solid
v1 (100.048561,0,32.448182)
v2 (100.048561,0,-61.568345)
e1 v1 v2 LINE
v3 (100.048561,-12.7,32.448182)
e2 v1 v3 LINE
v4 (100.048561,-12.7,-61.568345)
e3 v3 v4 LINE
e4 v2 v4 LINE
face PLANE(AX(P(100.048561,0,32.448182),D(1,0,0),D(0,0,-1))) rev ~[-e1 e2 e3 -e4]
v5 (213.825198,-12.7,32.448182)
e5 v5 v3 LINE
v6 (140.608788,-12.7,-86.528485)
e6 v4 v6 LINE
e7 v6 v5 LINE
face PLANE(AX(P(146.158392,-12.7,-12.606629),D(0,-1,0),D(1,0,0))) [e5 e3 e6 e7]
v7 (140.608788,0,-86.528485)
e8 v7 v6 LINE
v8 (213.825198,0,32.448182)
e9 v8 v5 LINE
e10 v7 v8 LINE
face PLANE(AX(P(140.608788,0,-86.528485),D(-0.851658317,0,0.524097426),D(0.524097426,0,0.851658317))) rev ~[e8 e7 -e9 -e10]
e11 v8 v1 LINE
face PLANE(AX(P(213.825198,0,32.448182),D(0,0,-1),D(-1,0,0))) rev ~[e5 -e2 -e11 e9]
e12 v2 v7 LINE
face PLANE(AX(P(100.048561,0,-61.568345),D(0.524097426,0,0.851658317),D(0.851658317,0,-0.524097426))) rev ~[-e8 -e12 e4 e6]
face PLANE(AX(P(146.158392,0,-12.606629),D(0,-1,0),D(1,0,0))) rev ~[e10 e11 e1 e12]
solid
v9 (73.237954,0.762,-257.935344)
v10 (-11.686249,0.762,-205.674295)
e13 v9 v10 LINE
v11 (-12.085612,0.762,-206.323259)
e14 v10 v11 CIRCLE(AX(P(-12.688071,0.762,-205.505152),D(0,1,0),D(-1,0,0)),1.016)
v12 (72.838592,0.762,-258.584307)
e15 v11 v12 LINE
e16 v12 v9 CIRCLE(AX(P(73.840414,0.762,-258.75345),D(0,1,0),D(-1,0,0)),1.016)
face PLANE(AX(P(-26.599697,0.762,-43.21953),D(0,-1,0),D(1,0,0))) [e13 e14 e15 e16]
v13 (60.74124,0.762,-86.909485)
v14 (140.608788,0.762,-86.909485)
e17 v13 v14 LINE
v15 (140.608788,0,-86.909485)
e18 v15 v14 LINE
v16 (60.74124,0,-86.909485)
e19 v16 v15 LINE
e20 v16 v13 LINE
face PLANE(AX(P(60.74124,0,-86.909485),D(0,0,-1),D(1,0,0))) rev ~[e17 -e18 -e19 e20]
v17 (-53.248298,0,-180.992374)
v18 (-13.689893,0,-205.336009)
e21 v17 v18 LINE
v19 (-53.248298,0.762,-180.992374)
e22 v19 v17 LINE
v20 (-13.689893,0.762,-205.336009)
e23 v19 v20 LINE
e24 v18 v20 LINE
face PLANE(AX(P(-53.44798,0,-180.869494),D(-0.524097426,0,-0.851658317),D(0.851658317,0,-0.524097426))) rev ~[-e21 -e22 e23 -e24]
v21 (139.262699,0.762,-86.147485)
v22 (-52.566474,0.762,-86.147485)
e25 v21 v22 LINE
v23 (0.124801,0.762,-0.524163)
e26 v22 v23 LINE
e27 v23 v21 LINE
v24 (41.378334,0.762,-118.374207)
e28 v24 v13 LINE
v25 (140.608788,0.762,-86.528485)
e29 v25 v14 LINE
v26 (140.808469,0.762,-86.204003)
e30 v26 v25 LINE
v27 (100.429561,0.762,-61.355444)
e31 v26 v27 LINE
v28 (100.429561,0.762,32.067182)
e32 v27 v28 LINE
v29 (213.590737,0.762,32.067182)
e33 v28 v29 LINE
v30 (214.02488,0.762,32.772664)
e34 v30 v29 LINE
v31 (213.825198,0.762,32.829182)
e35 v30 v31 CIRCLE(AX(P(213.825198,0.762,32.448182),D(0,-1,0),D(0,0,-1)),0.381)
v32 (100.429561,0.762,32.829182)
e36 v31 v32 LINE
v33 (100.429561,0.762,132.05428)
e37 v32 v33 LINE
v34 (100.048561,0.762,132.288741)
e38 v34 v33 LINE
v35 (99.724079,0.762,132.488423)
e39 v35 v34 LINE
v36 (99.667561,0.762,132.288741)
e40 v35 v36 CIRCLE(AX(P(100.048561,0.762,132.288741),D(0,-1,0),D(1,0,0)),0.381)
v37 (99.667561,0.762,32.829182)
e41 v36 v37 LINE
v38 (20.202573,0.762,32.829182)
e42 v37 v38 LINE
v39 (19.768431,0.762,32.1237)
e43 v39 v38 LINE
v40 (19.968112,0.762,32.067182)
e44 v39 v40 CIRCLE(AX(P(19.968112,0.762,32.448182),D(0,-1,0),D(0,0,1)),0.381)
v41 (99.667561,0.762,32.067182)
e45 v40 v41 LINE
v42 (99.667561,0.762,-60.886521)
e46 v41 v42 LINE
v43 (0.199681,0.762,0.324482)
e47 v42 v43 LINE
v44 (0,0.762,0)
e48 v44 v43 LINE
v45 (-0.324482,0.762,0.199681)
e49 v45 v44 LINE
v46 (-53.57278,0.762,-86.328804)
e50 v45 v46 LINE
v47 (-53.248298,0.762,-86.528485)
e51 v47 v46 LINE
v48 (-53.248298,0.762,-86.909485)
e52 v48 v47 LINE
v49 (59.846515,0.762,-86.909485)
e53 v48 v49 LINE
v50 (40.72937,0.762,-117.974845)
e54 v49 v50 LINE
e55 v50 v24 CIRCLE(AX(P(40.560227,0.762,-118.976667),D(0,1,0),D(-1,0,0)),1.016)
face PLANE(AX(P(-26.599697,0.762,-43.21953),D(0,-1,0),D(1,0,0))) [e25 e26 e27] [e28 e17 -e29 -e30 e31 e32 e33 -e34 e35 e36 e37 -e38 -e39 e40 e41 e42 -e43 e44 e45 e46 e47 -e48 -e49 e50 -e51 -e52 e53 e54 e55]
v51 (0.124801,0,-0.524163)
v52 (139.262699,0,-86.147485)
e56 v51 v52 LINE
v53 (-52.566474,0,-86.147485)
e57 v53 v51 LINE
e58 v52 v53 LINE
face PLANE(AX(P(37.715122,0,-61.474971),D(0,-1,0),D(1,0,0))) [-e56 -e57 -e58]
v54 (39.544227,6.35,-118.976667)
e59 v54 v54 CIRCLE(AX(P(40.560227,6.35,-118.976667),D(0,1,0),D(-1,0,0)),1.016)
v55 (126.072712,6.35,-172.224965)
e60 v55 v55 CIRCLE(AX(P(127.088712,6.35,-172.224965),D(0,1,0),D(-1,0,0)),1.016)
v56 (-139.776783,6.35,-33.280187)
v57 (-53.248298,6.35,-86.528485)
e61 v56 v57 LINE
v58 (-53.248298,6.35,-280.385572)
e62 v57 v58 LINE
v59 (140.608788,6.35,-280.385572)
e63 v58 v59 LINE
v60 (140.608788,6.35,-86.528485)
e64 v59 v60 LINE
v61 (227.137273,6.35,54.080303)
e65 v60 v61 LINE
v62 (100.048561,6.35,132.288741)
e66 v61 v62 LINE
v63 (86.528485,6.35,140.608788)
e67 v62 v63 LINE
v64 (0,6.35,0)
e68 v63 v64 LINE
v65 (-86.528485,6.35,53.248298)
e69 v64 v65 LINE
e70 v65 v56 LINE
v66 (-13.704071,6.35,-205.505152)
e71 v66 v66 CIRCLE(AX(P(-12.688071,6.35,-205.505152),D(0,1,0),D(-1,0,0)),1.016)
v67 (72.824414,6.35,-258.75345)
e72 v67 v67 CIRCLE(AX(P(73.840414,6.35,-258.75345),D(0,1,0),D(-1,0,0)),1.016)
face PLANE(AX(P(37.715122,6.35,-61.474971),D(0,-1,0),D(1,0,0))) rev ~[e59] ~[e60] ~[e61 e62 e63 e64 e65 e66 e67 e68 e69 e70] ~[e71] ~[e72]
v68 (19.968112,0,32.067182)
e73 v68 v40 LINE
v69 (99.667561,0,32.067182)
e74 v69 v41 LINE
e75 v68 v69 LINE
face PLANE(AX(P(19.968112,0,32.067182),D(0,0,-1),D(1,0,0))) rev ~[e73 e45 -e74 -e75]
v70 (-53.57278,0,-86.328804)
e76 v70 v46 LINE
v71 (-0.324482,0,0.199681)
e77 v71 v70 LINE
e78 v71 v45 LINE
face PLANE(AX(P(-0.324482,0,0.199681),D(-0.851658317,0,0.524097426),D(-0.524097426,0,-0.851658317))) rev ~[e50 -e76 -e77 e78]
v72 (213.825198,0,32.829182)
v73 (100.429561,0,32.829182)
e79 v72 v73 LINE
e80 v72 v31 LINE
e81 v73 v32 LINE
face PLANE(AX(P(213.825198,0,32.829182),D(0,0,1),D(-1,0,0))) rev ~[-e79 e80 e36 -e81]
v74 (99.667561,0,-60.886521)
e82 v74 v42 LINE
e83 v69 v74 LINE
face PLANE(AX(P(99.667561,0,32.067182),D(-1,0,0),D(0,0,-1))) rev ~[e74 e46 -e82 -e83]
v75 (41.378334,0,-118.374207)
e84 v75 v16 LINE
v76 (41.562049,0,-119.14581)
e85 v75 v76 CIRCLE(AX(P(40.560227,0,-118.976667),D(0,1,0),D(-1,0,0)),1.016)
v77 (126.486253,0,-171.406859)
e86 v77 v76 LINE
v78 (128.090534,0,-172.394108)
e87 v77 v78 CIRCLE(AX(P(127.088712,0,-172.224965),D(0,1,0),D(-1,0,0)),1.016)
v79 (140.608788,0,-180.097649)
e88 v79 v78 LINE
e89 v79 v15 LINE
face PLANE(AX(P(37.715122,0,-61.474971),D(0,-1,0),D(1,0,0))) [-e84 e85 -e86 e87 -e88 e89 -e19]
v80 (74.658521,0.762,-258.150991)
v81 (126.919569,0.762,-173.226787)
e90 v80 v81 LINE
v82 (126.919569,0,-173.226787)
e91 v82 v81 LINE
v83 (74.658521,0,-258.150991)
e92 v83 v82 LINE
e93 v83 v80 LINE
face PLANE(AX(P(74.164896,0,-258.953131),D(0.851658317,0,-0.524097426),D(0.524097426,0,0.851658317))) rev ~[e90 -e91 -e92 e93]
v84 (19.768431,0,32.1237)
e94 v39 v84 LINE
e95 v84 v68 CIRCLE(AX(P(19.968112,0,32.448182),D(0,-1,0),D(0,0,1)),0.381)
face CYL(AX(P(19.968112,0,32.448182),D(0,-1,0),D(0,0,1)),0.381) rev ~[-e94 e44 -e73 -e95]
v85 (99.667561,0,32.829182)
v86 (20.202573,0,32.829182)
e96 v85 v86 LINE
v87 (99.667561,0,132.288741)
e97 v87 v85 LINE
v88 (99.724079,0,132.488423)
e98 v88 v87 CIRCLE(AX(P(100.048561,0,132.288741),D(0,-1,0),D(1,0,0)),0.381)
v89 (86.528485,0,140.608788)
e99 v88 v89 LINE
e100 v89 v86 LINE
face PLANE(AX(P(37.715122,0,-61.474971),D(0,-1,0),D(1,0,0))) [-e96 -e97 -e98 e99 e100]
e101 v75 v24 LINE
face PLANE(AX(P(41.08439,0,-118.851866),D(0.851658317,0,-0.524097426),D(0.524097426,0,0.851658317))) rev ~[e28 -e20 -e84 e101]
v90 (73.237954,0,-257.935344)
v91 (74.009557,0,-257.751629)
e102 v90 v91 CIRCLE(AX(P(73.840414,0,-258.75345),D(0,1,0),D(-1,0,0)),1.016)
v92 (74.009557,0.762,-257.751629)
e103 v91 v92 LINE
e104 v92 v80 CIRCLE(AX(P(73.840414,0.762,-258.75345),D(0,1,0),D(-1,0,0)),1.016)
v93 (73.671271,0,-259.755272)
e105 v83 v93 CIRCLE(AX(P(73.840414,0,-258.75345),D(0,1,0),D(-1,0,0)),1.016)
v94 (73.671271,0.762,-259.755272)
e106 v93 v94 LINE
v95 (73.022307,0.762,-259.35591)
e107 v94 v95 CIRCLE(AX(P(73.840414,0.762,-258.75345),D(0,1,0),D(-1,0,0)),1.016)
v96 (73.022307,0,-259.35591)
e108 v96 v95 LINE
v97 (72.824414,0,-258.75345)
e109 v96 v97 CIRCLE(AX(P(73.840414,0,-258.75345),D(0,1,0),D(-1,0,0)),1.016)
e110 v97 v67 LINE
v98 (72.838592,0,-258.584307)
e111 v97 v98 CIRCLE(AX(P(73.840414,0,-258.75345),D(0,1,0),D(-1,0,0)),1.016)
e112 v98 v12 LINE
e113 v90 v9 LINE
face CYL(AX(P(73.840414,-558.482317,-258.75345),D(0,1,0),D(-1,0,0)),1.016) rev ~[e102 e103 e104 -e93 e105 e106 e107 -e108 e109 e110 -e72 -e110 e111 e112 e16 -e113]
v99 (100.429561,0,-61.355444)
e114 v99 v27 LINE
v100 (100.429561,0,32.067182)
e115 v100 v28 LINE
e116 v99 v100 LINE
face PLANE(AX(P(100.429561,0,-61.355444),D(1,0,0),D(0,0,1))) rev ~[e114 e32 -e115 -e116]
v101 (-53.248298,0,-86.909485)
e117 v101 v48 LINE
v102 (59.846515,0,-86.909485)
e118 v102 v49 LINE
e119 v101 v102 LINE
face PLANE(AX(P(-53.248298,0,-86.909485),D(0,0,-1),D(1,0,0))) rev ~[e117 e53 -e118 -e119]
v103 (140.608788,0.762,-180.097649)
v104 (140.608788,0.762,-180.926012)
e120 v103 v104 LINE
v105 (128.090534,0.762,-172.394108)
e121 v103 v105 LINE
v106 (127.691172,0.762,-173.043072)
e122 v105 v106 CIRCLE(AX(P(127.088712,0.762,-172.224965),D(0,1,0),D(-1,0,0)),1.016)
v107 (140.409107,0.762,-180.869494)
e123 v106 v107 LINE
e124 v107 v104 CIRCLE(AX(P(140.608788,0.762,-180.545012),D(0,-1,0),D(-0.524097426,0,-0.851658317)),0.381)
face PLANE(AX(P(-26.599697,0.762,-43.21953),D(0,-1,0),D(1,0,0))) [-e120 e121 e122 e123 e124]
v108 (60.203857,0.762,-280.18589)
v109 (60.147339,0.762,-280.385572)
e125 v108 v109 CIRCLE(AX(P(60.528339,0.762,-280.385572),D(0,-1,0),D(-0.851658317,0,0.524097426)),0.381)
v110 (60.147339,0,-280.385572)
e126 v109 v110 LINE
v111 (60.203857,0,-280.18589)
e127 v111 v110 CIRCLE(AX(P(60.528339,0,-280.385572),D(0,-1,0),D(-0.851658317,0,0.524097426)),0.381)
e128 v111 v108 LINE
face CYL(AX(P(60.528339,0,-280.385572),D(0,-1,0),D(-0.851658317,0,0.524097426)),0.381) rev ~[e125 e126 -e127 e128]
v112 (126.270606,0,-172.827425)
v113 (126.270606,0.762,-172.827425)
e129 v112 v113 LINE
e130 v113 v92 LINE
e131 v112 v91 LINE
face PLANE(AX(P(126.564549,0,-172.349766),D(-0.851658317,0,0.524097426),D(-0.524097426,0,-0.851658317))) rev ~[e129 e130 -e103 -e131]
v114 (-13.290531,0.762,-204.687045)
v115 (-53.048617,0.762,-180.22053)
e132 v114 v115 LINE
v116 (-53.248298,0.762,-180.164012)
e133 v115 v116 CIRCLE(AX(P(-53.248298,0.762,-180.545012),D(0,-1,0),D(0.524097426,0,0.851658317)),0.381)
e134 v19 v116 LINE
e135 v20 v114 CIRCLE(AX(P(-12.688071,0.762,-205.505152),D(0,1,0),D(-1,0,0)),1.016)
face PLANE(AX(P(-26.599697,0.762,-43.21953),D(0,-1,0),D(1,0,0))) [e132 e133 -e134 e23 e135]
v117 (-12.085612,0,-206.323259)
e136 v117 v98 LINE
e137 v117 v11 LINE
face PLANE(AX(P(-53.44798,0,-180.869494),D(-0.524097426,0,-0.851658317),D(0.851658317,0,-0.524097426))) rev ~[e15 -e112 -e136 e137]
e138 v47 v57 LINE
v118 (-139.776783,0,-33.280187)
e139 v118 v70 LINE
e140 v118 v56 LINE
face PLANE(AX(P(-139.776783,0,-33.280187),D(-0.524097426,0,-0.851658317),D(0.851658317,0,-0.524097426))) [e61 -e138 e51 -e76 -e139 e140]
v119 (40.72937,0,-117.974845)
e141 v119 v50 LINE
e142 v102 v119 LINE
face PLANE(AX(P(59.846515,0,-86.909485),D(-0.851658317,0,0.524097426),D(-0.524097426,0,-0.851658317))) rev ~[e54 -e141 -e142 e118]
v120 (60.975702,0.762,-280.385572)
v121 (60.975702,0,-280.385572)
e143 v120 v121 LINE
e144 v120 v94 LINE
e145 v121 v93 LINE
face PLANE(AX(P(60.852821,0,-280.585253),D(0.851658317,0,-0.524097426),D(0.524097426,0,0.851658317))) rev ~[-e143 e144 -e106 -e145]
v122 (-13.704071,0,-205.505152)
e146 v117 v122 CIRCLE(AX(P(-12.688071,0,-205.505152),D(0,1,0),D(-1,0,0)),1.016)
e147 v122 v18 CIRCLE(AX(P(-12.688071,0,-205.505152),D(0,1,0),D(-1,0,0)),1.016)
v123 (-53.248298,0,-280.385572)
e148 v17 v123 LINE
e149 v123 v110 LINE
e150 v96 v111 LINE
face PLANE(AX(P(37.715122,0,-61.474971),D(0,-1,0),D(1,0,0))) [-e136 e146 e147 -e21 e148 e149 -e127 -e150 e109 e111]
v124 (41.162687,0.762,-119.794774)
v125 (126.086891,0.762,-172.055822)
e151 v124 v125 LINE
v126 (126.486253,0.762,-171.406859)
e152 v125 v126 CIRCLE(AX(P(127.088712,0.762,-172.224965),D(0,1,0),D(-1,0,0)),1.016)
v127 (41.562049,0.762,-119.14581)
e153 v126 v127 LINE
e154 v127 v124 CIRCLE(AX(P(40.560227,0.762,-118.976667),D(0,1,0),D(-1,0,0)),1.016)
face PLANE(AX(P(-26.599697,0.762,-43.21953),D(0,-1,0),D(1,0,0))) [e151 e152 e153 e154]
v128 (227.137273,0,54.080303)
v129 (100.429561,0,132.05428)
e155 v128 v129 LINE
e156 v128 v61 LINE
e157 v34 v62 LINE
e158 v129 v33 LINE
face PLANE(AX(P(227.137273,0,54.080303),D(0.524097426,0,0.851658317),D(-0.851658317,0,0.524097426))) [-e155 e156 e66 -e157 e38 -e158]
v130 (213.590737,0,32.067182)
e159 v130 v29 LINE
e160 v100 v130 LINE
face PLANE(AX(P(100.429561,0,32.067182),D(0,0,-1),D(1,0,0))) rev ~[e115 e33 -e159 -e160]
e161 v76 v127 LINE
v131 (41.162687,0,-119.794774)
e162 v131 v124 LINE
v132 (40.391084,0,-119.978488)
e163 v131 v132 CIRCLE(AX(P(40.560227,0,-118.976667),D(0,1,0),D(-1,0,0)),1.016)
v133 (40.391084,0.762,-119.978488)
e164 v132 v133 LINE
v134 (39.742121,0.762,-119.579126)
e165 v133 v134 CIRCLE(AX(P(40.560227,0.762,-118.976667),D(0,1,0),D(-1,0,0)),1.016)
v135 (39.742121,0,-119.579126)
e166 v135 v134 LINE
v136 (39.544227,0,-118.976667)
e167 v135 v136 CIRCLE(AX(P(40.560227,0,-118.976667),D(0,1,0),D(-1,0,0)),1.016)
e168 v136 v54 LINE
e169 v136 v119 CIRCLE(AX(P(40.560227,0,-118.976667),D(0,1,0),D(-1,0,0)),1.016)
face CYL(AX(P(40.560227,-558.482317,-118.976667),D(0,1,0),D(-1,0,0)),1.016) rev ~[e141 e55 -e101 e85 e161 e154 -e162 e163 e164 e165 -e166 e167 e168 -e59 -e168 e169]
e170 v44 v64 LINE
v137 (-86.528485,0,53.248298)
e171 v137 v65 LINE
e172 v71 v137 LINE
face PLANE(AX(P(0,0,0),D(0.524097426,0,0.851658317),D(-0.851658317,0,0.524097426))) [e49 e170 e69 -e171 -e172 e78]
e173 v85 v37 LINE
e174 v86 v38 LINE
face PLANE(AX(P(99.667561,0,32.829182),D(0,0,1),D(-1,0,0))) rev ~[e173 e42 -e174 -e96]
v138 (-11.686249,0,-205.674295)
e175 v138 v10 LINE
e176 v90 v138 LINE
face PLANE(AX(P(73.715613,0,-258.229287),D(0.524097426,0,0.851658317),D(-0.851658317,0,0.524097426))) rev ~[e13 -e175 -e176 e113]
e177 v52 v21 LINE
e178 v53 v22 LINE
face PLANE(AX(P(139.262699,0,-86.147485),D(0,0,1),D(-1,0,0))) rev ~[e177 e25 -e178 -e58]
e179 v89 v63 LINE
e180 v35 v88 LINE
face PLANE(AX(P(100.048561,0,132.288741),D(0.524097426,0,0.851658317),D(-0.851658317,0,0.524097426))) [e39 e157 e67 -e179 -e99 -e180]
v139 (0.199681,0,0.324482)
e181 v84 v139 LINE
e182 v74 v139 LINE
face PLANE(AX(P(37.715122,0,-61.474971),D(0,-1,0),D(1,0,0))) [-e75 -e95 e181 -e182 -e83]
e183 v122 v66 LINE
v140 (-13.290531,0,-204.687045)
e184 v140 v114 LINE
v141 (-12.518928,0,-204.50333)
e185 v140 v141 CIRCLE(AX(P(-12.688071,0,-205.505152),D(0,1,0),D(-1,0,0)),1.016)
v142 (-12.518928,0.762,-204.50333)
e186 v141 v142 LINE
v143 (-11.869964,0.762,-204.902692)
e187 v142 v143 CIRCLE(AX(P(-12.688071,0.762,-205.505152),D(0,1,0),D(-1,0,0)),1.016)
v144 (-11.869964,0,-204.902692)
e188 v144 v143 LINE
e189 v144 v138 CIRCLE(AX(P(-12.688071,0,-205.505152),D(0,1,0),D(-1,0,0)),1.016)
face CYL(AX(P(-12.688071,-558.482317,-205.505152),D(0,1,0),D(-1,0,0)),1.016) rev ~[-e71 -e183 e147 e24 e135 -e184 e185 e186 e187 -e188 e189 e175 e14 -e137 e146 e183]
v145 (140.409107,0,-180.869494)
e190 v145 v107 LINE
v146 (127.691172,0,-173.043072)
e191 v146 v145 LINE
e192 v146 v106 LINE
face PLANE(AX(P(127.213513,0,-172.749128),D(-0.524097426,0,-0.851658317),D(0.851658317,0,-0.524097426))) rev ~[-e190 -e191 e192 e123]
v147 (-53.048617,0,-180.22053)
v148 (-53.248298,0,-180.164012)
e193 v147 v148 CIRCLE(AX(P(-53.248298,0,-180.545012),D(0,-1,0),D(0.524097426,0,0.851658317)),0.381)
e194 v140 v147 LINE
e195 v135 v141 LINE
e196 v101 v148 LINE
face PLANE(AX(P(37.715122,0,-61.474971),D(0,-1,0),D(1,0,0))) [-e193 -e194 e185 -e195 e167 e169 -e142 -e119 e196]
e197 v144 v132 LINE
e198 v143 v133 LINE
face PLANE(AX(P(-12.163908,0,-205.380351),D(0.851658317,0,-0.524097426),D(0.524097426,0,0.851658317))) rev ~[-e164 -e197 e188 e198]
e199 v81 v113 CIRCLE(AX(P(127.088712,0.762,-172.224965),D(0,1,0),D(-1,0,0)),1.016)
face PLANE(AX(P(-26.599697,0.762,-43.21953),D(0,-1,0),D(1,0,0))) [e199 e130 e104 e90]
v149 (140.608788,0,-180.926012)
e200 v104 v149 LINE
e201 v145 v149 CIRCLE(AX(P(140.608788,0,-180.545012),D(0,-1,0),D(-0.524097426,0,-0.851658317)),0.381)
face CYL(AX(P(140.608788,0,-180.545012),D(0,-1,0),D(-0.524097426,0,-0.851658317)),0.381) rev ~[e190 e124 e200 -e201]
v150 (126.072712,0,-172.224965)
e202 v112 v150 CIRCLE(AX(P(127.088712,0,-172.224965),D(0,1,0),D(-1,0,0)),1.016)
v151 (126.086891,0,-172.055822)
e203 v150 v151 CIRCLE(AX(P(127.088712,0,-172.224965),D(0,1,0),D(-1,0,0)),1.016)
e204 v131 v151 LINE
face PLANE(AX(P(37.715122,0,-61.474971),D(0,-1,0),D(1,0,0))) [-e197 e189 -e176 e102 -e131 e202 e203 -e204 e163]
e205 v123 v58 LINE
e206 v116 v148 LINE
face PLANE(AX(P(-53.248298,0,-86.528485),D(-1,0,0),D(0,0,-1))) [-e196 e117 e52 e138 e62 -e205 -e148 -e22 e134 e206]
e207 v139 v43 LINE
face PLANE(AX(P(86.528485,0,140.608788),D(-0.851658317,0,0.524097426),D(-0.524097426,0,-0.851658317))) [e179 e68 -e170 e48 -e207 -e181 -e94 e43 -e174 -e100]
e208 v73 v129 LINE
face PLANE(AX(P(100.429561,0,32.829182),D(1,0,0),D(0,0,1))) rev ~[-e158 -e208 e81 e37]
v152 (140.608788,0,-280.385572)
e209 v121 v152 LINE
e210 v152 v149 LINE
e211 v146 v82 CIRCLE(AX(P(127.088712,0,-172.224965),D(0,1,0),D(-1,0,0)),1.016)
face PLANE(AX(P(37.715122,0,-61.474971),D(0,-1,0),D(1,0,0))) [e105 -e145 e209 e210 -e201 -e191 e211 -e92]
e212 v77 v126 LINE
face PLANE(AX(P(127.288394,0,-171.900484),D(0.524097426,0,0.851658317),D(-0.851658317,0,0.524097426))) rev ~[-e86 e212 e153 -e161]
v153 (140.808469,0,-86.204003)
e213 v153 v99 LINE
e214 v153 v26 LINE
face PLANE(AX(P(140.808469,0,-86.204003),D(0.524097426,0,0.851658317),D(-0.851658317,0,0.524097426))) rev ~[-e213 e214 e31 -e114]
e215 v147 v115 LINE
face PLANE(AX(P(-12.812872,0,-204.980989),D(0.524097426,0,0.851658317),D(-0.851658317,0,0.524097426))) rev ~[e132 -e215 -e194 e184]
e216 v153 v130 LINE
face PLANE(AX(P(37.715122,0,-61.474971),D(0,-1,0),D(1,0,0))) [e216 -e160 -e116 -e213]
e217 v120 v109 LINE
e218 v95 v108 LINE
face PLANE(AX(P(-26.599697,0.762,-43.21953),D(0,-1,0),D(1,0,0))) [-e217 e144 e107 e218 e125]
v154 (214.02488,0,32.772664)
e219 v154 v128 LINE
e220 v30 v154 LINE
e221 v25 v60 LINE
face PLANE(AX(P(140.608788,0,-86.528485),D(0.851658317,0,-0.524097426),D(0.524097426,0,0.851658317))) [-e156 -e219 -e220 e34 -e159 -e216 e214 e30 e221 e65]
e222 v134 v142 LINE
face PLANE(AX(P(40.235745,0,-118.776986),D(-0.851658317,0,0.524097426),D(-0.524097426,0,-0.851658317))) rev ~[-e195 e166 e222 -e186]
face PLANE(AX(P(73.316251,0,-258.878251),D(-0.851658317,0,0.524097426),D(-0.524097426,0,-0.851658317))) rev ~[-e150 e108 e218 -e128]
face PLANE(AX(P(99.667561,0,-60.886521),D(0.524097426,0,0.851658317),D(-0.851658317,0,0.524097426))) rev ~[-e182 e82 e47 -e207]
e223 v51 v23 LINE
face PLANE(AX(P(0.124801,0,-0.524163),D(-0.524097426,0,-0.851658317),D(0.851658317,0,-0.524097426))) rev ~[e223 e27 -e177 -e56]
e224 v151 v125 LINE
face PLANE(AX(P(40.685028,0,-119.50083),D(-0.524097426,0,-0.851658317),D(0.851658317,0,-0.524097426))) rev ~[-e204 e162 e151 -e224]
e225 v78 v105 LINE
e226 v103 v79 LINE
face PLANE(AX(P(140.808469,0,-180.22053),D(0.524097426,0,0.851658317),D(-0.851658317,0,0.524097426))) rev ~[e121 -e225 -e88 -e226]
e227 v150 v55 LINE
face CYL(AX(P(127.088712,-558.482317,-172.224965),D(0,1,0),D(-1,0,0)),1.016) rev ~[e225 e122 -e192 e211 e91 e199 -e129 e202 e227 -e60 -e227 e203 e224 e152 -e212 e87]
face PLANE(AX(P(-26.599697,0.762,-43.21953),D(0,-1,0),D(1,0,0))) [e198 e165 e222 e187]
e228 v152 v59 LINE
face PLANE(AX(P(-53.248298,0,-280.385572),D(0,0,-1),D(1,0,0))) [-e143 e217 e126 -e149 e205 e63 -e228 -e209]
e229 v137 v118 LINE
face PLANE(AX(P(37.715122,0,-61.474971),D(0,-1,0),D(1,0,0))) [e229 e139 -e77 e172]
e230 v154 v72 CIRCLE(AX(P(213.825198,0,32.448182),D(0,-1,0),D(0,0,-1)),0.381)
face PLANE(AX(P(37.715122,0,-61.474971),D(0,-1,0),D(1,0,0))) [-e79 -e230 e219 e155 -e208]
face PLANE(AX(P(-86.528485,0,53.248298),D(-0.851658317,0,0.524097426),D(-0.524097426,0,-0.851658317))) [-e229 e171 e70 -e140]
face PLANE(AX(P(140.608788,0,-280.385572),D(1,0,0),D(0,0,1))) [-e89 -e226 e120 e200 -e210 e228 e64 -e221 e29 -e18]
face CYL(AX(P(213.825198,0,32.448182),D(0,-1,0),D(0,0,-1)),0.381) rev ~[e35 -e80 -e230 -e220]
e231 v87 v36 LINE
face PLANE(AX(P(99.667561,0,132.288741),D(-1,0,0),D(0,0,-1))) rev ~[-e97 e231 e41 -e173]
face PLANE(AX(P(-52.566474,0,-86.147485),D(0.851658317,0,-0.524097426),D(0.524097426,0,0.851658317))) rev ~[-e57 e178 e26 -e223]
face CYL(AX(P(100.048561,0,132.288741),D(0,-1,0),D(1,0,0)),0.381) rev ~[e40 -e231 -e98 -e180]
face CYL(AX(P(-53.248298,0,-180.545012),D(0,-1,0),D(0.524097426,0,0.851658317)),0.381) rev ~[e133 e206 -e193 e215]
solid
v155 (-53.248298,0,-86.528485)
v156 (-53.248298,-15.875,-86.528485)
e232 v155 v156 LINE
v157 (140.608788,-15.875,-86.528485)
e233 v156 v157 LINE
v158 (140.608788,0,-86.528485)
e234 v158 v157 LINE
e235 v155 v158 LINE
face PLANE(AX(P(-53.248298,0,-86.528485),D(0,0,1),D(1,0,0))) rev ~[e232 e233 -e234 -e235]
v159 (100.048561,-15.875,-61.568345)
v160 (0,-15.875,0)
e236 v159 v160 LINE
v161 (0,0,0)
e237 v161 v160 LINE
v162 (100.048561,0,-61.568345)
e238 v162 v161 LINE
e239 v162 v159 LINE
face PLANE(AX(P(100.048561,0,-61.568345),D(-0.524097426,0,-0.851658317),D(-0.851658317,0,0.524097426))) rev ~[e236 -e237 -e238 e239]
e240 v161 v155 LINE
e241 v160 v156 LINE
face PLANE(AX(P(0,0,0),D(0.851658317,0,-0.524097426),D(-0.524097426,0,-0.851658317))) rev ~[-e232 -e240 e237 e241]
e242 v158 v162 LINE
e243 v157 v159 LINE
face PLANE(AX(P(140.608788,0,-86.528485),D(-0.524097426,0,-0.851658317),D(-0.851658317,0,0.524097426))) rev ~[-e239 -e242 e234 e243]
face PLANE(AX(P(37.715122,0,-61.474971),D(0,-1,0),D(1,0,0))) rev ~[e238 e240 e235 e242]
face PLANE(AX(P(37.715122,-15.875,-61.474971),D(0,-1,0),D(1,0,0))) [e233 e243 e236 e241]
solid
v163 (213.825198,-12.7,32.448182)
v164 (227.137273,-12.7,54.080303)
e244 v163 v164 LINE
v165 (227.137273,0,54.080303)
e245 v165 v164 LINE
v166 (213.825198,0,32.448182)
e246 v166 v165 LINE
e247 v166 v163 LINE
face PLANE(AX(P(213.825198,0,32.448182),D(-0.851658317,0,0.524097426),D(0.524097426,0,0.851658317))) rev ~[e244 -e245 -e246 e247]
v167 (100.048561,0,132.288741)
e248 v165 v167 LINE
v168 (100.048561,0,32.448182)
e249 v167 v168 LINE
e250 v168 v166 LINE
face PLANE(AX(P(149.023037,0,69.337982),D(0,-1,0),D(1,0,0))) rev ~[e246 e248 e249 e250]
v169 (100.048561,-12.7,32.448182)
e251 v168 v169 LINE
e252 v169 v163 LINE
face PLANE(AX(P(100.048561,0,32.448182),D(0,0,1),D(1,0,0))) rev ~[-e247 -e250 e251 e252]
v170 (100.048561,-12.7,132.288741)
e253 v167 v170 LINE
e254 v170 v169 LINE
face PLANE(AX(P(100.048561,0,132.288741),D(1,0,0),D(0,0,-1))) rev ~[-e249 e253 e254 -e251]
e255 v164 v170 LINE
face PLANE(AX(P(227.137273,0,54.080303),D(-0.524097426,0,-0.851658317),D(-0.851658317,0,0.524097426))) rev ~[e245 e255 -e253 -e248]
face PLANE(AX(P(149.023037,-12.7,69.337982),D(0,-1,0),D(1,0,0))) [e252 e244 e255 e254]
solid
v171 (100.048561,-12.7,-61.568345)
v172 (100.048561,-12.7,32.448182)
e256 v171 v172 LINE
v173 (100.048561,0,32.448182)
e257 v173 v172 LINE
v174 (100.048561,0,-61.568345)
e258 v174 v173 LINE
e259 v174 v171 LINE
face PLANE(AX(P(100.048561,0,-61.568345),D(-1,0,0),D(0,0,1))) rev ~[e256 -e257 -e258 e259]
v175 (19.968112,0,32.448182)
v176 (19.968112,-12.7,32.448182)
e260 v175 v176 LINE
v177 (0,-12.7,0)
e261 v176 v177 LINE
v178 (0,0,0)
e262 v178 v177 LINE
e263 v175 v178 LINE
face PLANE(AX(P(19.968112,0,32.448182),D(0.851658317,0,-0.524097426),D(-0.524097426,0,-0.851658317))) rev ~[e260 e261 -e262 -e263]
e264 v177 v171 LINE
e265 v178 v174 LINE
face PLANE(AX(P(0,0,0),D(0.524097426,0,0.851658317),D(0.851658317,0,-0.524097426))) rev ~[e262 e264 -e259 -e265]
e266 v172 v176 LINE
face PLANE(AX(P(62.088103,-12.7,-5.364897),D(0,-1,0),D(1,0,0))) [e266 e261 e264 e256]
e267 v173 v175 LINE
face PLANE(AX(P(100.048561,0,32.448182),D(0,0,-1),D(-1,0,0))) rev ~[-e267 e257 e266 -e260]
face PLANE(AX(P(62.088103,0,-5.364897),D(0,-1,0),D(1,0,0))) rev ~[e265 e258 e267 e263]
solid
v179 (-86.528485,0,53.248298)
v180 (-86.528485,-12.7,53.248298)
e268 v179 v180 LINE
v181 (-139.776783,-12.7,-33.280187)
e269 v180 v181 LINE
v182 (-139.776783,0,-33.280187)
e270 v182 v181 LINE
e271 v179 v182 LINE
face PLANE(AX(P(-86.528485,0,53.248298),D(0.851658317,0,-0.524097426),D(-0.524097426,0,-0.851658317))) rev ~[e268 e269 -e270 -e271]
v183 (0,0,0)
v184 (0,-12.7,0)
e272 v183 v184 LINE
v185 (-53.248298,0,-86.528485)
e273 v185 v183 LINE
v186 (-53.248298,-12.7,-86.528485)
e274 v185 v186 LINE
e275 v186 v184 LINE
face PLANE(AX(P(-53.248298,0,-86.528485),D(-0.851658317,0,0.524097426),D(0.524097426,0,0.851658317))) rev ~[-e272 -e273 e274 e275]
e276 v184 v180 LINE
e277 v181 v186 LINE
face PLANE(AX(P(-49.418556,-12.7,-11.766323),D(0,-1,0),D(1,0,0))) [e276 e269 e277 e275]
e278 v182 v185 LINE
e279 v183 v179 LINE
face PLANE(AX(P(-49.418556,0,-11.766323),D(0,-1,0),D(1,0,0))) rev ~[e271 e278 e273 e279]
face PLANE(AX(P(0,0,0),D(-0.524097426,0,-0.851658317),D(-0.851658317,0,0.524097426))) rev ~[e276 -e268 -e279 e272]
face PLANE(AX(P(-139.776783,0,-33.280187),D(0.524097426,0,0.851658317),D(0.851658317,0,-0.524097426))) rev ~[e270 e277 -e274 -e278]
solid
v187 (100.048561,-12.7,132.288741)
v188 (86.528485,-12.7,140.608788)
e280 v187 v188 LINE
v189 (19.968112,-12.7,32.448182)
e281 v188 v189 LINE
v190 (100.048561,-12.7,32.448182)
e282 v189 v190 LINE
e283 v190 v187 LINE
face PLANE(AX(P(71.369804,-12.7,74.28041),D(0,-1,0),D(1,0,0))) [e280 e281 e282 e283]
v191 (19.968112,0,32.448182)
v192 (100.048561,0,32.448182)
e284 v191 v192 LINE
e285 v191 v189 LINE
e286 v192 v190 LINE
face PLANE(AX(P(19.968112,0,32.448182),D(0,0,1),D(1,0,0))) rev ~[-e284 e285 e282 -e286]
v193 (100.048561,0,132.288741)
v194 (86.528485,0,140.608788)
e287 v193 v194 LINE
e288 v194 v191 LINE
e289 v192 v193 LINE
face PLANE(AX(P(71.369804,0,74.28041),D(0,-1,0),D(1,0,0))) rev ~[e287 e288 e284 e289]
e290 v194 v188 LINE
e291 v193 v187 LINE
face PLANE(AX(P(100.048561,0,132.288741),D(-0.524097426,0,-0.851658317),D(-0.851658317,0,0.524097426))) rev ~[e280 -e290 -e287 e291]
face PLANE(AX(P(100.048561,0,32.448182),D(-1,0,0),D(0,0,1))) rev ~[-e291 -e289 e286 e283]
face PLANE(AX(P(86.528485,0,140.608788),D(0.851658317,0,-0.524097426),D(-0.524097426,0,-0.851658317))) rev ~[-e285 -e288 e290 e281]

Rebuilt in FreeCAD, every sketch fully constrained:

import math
import FreeCAD as App
import Part
import Sketcher
from FreeCAD import Vector
Q = App.Units.Quantity

doc = App.newDocument("Part")
body = doc.addObject("PartDesign::Body", "Body")

# Sketch on XZ plane
sketch1 = doc.addObject("Sketcher::SketchObject", "Sketch")
body.addObject(sketch1)
sketch1.AttachmentSupport = (doc.XZ_Plane, [""])
sketch1.MapMode = "FlatFace"
sketch1.addGeometry([
    Part.LineSegment(Vector(141, -87, 0), Vector(227, 54, 0)),  # 0
    Part.LineSegment(Vector(227, 54, 0), Vector(100, 132, 0)),  # 1
    Part.LineSegment(Vector(100, 132, 0), Vector(87, 141, 0)),  # 2
    Part.LineSegment(Vector(87, 141, 0), Vector(0, 0, 0)),  # 3
    Part.LineSegment(Vector(0, 0, 0), Vector(-87, 53, 0)),  # 4
    Part.LineSegment(Vector(-87, 53, 0), Vector(-140, -33, 0)),  # 5
    Part.LineSegment(Vector(-140, -33, 0), Vector(-53, -87, 0)),  # 6
    Part.LineSegment(Vector(-53, -87, 0), Vector(-53, -280, 0)),  # 7
    Part.LineSegment(Vector(-53, -280, 0), Vector(141, -280, 0)),  # 8
    Part.LineSegment(Vector(141, -280, 0), Vector(141, -87, 0)),  # 9
], False)
sketch1.addConstraint([
    Sketcher.Constraint("Coincident", 0, 2, 1, 1),
    Sketcher.Constraint("Coincident", 1, 2, 2, 1),
    Sketcher.Constraint("Coincident", 2, 2, 3, 1),
    Sketcher.Constraint("Coincident", 3, 2, 4, 1),
    Sketcher.Constraint("Coincident", 4, 2, 5, 1),
    Sketcher.Constraint("Coincident", 5, 2, 6, 1),
    Sketcher.Constraint("Coincident", 6, 2, 7, 1),
    Sketcher.Constraint("Coincident", 7, 2, 8, 1),
    Sketcher.Constraint("Coincident", 8, 2, 9, 1),
    Sketcher.Constraint("Coincident", 9, 2, 0, 1),
    Sketcher.Constraint("Vertical", 7),
    Sketcher.Constraint("Horizontal", 8),
    Sketcher.Constraint("Vertical", 9),
    Sketcher.Constraint("Coincident", 3, 2, -1, 1),
    Sketcher.Constraint("Perpendicular", 0, 1),
    Sketcher.Constraint("Parallel", 1, 2),
    Sketcher.Constraint("Perpendicular", 2, 3),
    Sketcher.Constraint("Perpendicular", 3, 4),
    Sketcher.Constraint("Perpendicular", 4, 5),
    Sketcher.Constraint("Perpendicular", 5, 6),
    Sketcher.Constraint("Horizontal", 6, 2, 9, 2),
    Sketcher.Constraint("Equal", 8, 7),
    Sketcher.Constraint("Equal", 0, 3),
    Sketcher.Constraint("Equal", 4, 5),
    Sketcher.Constraint("Equal", 5, 6),
    Sketcher.Constraint("Distance", 4, Q("4 in")),
    Sketcher.Constraint("Distance", 0, Q("6.5 in")),
    Sketcher.Constraint("Distance", 1, Q("5.875 in")),
    Sketcher.Constraint("Distance", 2, Q("0.625 in")),
])
pad1 = doc.addObject("PartDesign::Pad", "Pad")
body.addObject(pad1)
pad1.Profile = sketch1
pad1.Length = Q("0.25 in")
pad1.Reversed = True

# Sketch on XZ plane
sketch2 = doc.addObject("Sketcher::SketchObject", "Sketch001")
body.addObject(sketch2)
sketch2.AttachmentSupport = (doc.XZ_Plane, [""])
sketch2.MapMode = "FlatFace"
sketch2.addGeometry([
    Part.LineSegment(Vector(-53.45, -180.87, 0), Vector(73.32, -258.88, 0)),  # 0
    Part.LineSegment(Vector(73.32, -258.88, 0), Vector(60.2, -280.19, 0)),  # 1
    Part.ArcOfCircle(Part.Circle(Vector(60.53, -280.39, 0), Vector(0, 0, 1), 0.38), math.radians(148), math.radians(328)),  # 2
    Part.LineSegment(Vector(60.85, -280.59, 0), Vector(74.16, -258.95, 0)),  # 3
    Part.LineSegment(Vector(74.16, -258.95, 0), Vector(127.21, -172.75, 0)),  # 4
    Part.LineSegment(Vector(127.21, -172.75, 0), Vector(140.41, -180.87, 0)),  # 5
    Part.ArcOfCircle(Part.Circle(Vector(140.61, -180.55, 0), Vector(0, 0, 1), 0.38), math.radians(-122), math.radians(58)),  # 6
    Part.LineSegment(Vector(140.81, -180.22, 0), Vector(127.29, -171.9, 0)),  # 7
    Part.LineSegment(Vector(127.29, -171.9, 0), Vector(41.08, -118.85, 0)),  # 8
    Part.LineSegment(Vector(41.08, -118.85, 0), Vector(60.74, -86.91, 0)),  # 9
    Part.LineSegment(Vector(60.74, -86.91, 0), Vector(140.61, -86.91, 0)),  # 10
    Part.ArcOfCircle(Part.Circle(Vector(140.61, -86.53, 0), Vector(0, 0, 1), 0.38), math.radians(-90), math.radians(58)),  # 11
    Part.LineSegment(Vector(140.81, -86.2, 0), Vector(100.43, -61.36, 0)),  # 12
    Part.LineSegment(Vector(100.43, -61.36, 0), Vector(100.43, 32.07, 0)),  # 13
    Part.LineSegment(Vector(100.43, 32.07, 0), Vector(213.83, 32.07, 0)),  # 14
    Part.ArcOfCircle(Part.Circle(Vector(213.83, 32.45, 0), Vector(0, 0, 1), 0.38), math.radians(-90), math.radians(90)),  # 15
    Part.LineSegment(Vector(213.83, 32.83, 0), Vector(100.43, 32.83, 0)),  # 16
    Part.LineSegment(Vector(100.43, 32.83, 0), Vector(100.43, 132.29, 0)),  # 17
    Part.ArcOfCircle(Part.Circle(Vector(100.05, 132.29, 0), Vector(0, 0, 1), 0.38), math.radians(0), math.radians(180)),  # 18
    Part.LineSegment(Vector(99.67, 132.29, 0), Vector(99.67, 32.83, 0)),  # 19
    Part.LineSegment(Vector(99.67, 32.83, 0), Vector(19.97, 32.83, 0)),  # 20
    Part.ArcOfCircle(Part.Circle(Vector(19.97, 32.45, 0), Vector(0, 0, 1), 0.38), math.radians(90), math.radians(270)),  # 21
    Part.LineSegment(Vector(19.97, 32.07, 0), Vector(99.67, 32.07, 0)),  # 22
    Part.LineSegment(Vector(99.67, 32.07, 0), Vector(99.67, -60.89, 0)),  # 23
    Part.LineSegment(Vector(99.67, -60.89, 0), Vector(0.2, 0.32, 0)),  # 24
    Part.ArcOfCircle(Part.Circle(Vector(0, 0, 0), Vector(0, 0, 1), 0.38), math.radians(58), math.radians(148)),  # 25
    Part.LineSegment(Vector(-0.32, 0.2, 0), Vector(-53.57, -86.33, 0)),  # 26
    Part.ArcOfCircle(Part.Circle(Vector(-53.25, -86.53, 0), Vector(0, 0, 1), 0.38), math.radians(148), math.radians(270)),  # 27
    Part.LineSegment(Vector(-53.25, -86.91, 0), Vector(59.85, -86.91, 0)),  # 28
    Part.LineSegment(Vector(59.85, -86.91, 0), Vector(40.24, -118.78, 0)),  # 29
    Part.LineSegment(Vector(40.24, -118.78, 0), Vector(-12.81, -204.98, 0)),  # 30
    Part.LineSegment(Vector(-12.81, -204.98, 0), Vector(-53.05, -180.22, 0)),  # 31
    Part.ArcOfCircle(Part.Circle(Vector(-53.25, -180.55, 0), Vector(0, 0, 1), 0.38), math.radians(58), math.radians(238)),  # 32
    Part.LineSegment(Vector(126.56, -172.35, 0), Vector(73.72, -258.23, 0)),  # 33
    Part.LineSegment(Vector(73.72, -258.23, 0), Vector(-12.16, -205.38, 0)),  # 34
    Part.LineSegment(Vector(-12.16, -205.38, 0), Vector(40.69, -119.5, 0)),  # 35
    Part.LineSegment(Vector(40.69, -119.5, 0), Vector(126.56, -172.35, 0)),  # 36
    Part.LineSegment(Vector(-52.57, -86.15, 0), Vector(0.12, -0.52, 0)),  # 37
    Part.LineSegment(Vector(0.12, -0.52, 0), Vector(139.26, -86.15, 0)),  # 38
    Part.LineSegment(Vector(139.26, -86.15, 0), Vector(-52.57, -86.15, 0)),  # 39
], False)
sketch2.addConstraint([
    Sketcher.Constraint("Coincident", 0, 2, 1, 1),
    Sketcher.Constraint("Tangent", 1, 2, 2, 1),
    Sketcher.Constraint("Tangent", 2, 2, 3, 1),
    Sketcher.Constraint("Coincident", 3, 2, 4, 1),
    Sketcher.Constraint("Coincident", 4, 2, 5, 1),
    Sketcher.Constraint("Tangent", 5, 2, 6, 1),
    Sketcher.Constraint("Tangent", 6, 2, 7, 1),
    Sketcher.Constraint("Coincident", 7, 2, 8, 1),
    Sketcher.Constraint("Coincident", 8, 2, 9, 1),
    Sketcher.Constraint("Coincident", 9, 2, 10, 1),
    Sketcher.Constraint("Tangent", 10, 2, 11, 1),
    Sketcher.Constraint("Tangent", 11, 2, 12, 1),
    Sketcher.Constraint("Coincident", 12, 2, 13, 1),
    Sketcher.Constraint("Coincident", 13, 2, 14, 1),
    Sketcher.Constraint("Tangent", 14, 2, 15, 1),
    Sketcher.Constraint("Tangent", 15, 2, 16, 1),
    Sketcher.Constraint("Coincident", 16, 2, 17, 1),
    Sketcher.Constraint("Tangent", 17, 2, 18, 1),
    Sketcher.Constraint("Tangent", 18, 2, 19, 1),
    Sketcher.Constraint("Coincident", 19, 2, 20, 1),
    Sketcher.Constraint("Tangent", 20, 2, 21, 1),
    Sketcher.Constraint("Tangent", 21, 2, 22, 1),
    Sketcher.Constraint("Coincident", 22, 2, 23, 1),
    Sketcher.Constraint("Coincident", 23, 2, 24, 1),
    Sketcher.Constraint("Tangent", 24, 2, 25, 1),
    Sketcher.Constraint("Tangent", 25, 2, 26, 1),
    Sketcher.Constraint("Tangent", 26, 2, 27, 1),
    Sketcher.Constraint("Tangent", 27, 2, 28, 1),
    Sketcher.Constraint("Coincident", 28, 2, 29, 1),
    Sketcher.Constraint("Coincident", 29, 2, 30, 1),
    Sketcher.Constraint("Coincident", 30, 2, 31, 1),
    Sketcher.Constraint("Tangent", 31, 2, 32, 1),
    Sketcher.Constraint("Tangent", 32, 2, 0, 1),
    Sketcher.Constraint("Coincident", 33, 2, 34, 1),
    Sketcher.Constraint("Coincident", 34, 2, 35, 1),
    Sketcher.Constraint("Coincident", 35, 2, 36, 1),
    Sketcher.Constraint("Coincident", 36, 2, 33, 1),
    Sketcher.Constraint("Coincident", 37, 2, 38, 1),
    Sketcher.Constraint("Coincident", 38, 2, 39, 1),
    Sketcher.Constraint("Coincident", 39, 2, 37, 1),
    Sketcher.Constraint("Horizontal", 10),
    Sketcher.Constraint("Vertical", 13),
    Sketcher.Constraint("Horizontal", 14),
    Sketcher.Constraint("Horizontal", 16),
    Sketcher.Constraint("Vertical", 17),
    Sketcher.Constraint("Vertical", 19),
    Sketcher.Constraint("Horizontal", 20),
    Sketcher.Constraint("Horizontal", 22),
    Sketcher.Constraint("Vertical", 23),
    Sketcher.Constraint("Horizontal", 28),
    Sketcher.Constraint("Horizontal", 39),
    Sketcher.Constraint("Coincident", 25, 3, -1, 1),
    Sketcher.Constraint("Equal", 2, 6),
    Sketcher.Constraint("Equal", 6, 11),
    Sketcher.Constraint("Equal", 11, 15),
    Sketcher.Constraint("Equal", 15, 18),
    Sketcher.Constraint("Equal", 18, 21),
    Sketcher.Constraint("Equal", 21, 25),
    Sketcher.Constraint("Equal", 25, 27),
    Sketcher.Constraint("Equal", 27, 32),
    Sketcher.Constraint("Perpendicular", 0, 1),
    Sketcher.Constraint("Parallel", 1, 3),
    Sketcher.Constraint("Parallel", 3, 4),
    Sketcher.Constraint("Perpendicular", 4, 5),
    Sketcher.Constraint("Parallel", 5, 7),
    Sketcher.Constraint("Parallel", 7, 8),
    Sketcher.Constraint("Perpendicular", 8, 9),
    Sketcher.Constraint("Perpendicular", 9, 12),
    Sketcher.Constraint("Parallel", 12, 24),
    Sketcher.Constraint("Perpendicular", 24, 26),
    Sketcher.Constraint("Parallel", 26, 29),
    Sketcher.Constraint("Parallel", 29, 30),
    Sketcher.Constraint("Perpendicular", 30, 31),
    Sketcher.Constraint("Perpendicular", 31, 33),
    Sketcher.Constraint("Perpendicular", 33, 34),
    Sketcher.Constraint("Perpendicular", 34, 35),
    Sketcher.Constraint("Perpendicular", 35, 36),
    Sketcher.Constraint("Perpendicular", 36, 37),
    Sketcher.Constraint("Perpendicular", 37, 38),
    Sketcher.Constraint("Horizontal", 15, 3, 21, 3),
    Sketcher.Constraint("Horizontal", 11, 3, 27, 3),
    Sketcher.Constraint("Horizontal", 6, 3, 32, 3),
    Sketcher.Constraint("Vertical", 6, 3, 11, 3),
    Sketcher.Constraint("Vertical", 27, 3, 32, 3),
    Sketcher.Constraint("Vertical", 13, 2, 16, 2),
    Sketcher.Constraint("Vertical", 19, 2, 22, 2),
    Sketcher.Constraint("Equal", 4, 8),
    Sketcher.Constraint("Equal", 8, 30),
    Sketcher.Constraint("Equal", 33, 34),
    Sketcher.Constraint("Distance", 3, Q("1 in")),
    Sketcher.Constraint("Distance", 26, Q("4 in")),
    Sketcher.Constraint("Radius", 2, Q("0.015 in")),
    Sketcher.Constraint("Distance", 0, Q("5.86 in")),
    Sketcher.Constraint("Distance", 5, Q("0.61 in")),
    Sketcher.Constraint("Distance", 31, Q("1.86 in")),
    Sketcher.Constraint("Distance", 33, Q("3.97 in")),
    Sketcher.Constraint("DistanceY", 10, 2, 38, 2, Q("0.03 in")),
    Sketcher.Constraint("Distance", 1, Q("0.985 in")),
    Sketcher.Constraint("Distance", 4, Q("3.985 in")),
    Sketcher.Constraint("Distance", 7, Q("0.625 in")),
    Sketcher.Constraint("Distance", 9, 37.506099),
    Sketcher.Constraint("Distance", 12, 47.412099),
    Sketcher.Constraint("DistanceX", 20, 2, 20, 1, 79.699449),
    Sketcher.Constraint("DistanceY", 17, 1, 17, 2, 99.45956),
    Sketcher.Constraint("DistanceX", -1, 1, 15, 3, 213.825198),
    Sketcher.Constraint("DistanceX", -1, 1, 37, 2, 0.124801),
    Sketcher.Constraint("DistanceX", -1, 1, 38, 2, 139.262699),
    Sketcher.Constraint("DistanceY", 24, 2, 21, 2, 31.7427),
    Sketcher.Constraint("DistanceX", 34, 2, -1, 1, 12.163908),
    Sketcher.Constraint("DistanceY", 34, 2, -1, 1, 205.380351),
])
pocket1 = doc.addObject("PartDesign::Pocket", "Pocket")
body.addObject(pocket1)
pocket1.Profile = sketch2
pocket1.Length = Q("0.03 in")

# Sketch on XZ plane
sketch3 = doc.addObject("Sketcher::SketchObject", "Sketch002")
body.addObject(sketch3)
sketch3.AttachmentSupport = (doc.XZ_Plane, [""])
sketch3.MapMode = "FlatFace"
sketch3.addGeometry([
    Part.Circle(Vector(40.6, -119, 0), Vector(0, 0, 1), 1),
    Part.Circle(Vector(127.1, -172.2, 0), Vector(0, 0, 1), 1),
    Part.Circle(Vector(73.8, -258.8, 0), Vector(0, 0, 1), 1),
    Part.Circle(Vector(-12.7, -205.5, 0), Vector(0, 0, 1), 1),
], False)
sketch3.addConstraint([
    Sketcher.Constraint("Equal", 0, 1),
    Sketcher.Constraint("Equal", 1, 2),
    Sketcher.Constraint("Equal", 2, 3),
    Sketcher.Constraint("Diameter", 0, Q("0.08 in")),
    Sketcher.Constraint("DistanceY", 1, 3, 0, 3, 53.248298),
    Sketcher.Constraint("DistanceX", 2, 3, 1, 3, 53.248298),
    Sketcher.Constraint("DistanceY", 2, 3, 3, 3, 53.248298),
    Sketcher.Constraint("DistanceX", 3, 3, 0, 3, 53.248298),
    Sketcher.Constraint("DistanceY", 2, 3, -1, 1, 258.75345),
    Sketcher.Constraint("DistanceX", 3, 3, -1, 1, 12.688071),
    Sketcher.Constraint("DistanceY", 0, 3, -1, 1, 118.976667),
    Sketcher.Constraint("DistanceX", -1, 1, 1, 3, 127.088712),
])
doc.recompute()
hole = doc.addObject("PartDesign::Hole", "Hole")
body.addObject(hole)
hole.Profile = sketch3
hole.ThreadType = "None"
hole.Diameter = Q("0.08 in")
hole.DepthType = "ThroughAll"
body2 = doc.addObject("PartDesign::Body", "Body001")

# Sketch on XZ plane
sketch4 = doc.addObject("Sketcher::SketchObject", "Sketch003")
body2.addObject(sketch4)
sketch4.AttachmentSupport = (doc.getObject("XZ_Plane001"), [""])
sketch4.MapMode = "FlatFace"
sketch4.addGeometry([
    Part.LineSegment(Vector(100, -62, 0), Vector(0, 0, 0)),
    Part.LineSegment(Vector(0, 0, 0), Vector(-53, -87, 0)),
    Part.LineSegment(Vector(-53, -87, 0), Vector(141, -87, 0)),
    Part.LineSegment(Vector(141, -87, 0), Vector(100, -62, 0)),
], False)
sketch4.addConstraint([
    Sketcher.Constraint("Coincident", 0, 2, 1, 1),
    Sketcher.Constraint("Coincident", 1, 2, 2, 1),
    Sketcher.Constraint("Coincident", 2, 2, 3, 1),
    Sketcher.Constraint("Coincident", 3, 2, 0, 1),
    Sketcher.Constraint("Horizontal", 2),
    Sketcher.Constraint("Coincident", 0, 2, -1, 1),
    Sketcher.Constraint("Perpendicular", 0, 1),
    Sketcher.Constraint("Perpendicular", 1, 3),
    Sketcher.Constraint("Distance", 1, Q("4 in")),
    Sketcher.Constraint("Distance", 0, Q("4.625 in")),
    Sketcher.Constraint("Distance", 3, Q("1.875 in")),
])
pad2 = doc.addObject("PartDesign::Pad", "Pad001")
body2.addObject(pad2)
pad2.Profile = sketch4
pad2.Length = Q("0.625 in")
body3 = doc.addObject("PartDesign::Body", "Body002")

# Sketch on XZ plane
sketch5 = doc.addObject("Sketcher::SketchObject", "Sketch004")
body3.addObject(sketch5)
sketch5.AttachmentSupport = (doc.getObject("XZ_Plane002"), [""])
sketch5.MapMode = "FlatFace"
sketch5.addGeometry([
    Part.LineSegment(Vector(100, 132, 0), Vector(100, 32, 0)),
    Part.LineSegment(Vector(100, 32, 0), Vector(214, 32, 0)),
    Part.LineSegment(Vector(214, 32, 0), Vector(227, 54, 0)),
    Part.LineSegment(Vector(227, 54, 0), Vector(100, 132, 0)),
], False)
sketch5.addConstraint([
    Sketcher.Constraint("Coincident", 0, 2, 1, 1),
    Sketcher.Constraint("Coincident", 1, 2, 2, 1),
    Sketcher.Constraint("Coincident", 2, 2, 3, 1),
    Sketcher.Constraint("Coincident", 3, 2, 0, 1),
    Sketcher.Constraint("Vertical", 0),
    Sketcher.Constraint("Horizontal", 1),
    Sketcher.Constraint("Perpendicular", 2, 3),
    Sketcher.Constraint("Distance", 2, Q("1 in")),
    Sketcher.Constraint("Distance", 3, Q("5.875 in")),
    Sketcher.Constraint("DistanceY", 0, 2, 0, 1, 99.84056),
    Sketcher.Constraint("DistanceX", -1, 1, 1, 2, 213.825198),
    Sketcher.Constraint("DistanceY", -1, 1, 0, 2, 32.448182),
])
pad3 = doc.addObject("PartDesign::Pad", "Pad002")
body3.addObject(pad3)
pad3.Profile = sketch5
pad3.Length = Q("0.5 in")
body4 = doc.addObject("PartDesign::Body", "Body003")

# Sketch on XZ plane
sketch6 = doc.addObject("Sketcher::SketchObject", "Sketch005")
body4.addObject(sketch6)
sketch6.AttachmentSupport = (doc.getObject("XZ_Plane003"), [""])
sketch6.MapMode = "FlatFace"
sketch6.addGeometry([
    Part.LineSegment(Vector(87, 141, 0), Vector(20, 32, 0)),
    Part.LineSegment(Vector(20, 32, 0), Vector(100, 32, 0)),
    Part.LineSegment(Vector(100, 32, 0), Vector(100, 132, 0)),
    Part.LineSegment(Vector(100, 132, 0), Vector(87, 141, 0)),
], False)
sketch6.addConstraint([
    Sketcher.Constraint("Coincident", 0, 2, 1, 1),
    Sketcher.Constraint("Coincident", 1, 2, 2, 1),
    Sketcher.Constraint("Coincident", 2, 2, 3, 1),
    Sketcher.Constraint("Coincident", 3, 2, 0, 1),
    Sketcher.Constraint("Horizontal", 1),
    Sketcher.Constraint("Vertical", 2),
    Sketcher.Constraint("Perpendicular", 0, 3),
    Sketcher.Constraint("Distance", 0, Q("5 in")),
    Sketcher.Constraint("Distance", 3, Q("0.625 in")),
    Sketcher.Constraint("DistanceX", 1, 1, 1, 2, 80.080449),
    Sketcher.Constraint("DistanceX", -1, 1, 0, 2, 19.968112),
    Sketcher.Constraint("DistanceY", -1, 1, 0, 2, 32.448182),
])
pad4 = doc.addObject("PartDesign::Pad", "Pad003")
body4.addObject(pad4)
pad4.Profile = sketch6
pad4.Length = Q("0.5 in")
body5 = doc.addObject("PartDesign::Body", "Body004")

# Sketch on XZ plane
sketch7 = doc.addObject("Sketcher::SketchObject", "Sketch006")
body5.addObject(sketch7)
sketch7.AttachmentSupport = (doc.getObject("XZ_Plane004"), [""])
sketch7.MapMode = "FlatFace"
sketch7.addGeometry([
    Part.LineSegment(Vector(100, 32, 0), Vector(100, -62, 0)),
    Part.LineSegment(Vector(100, -62, 0), Vector(141, -87, 0)),
    Part.LineSegment(Vector(141, -87, 0), Vector(214, 32, 0)),
    Part.LineSegment(Vector(214, 32, 0), Vector(100, 32, 0)),
], False)
sketch7.addConstraint([
    Sketcher.Constraint("Coincident", 0, 2, 1, 1),
    Sketcher.Constraint("Coincident", 1, 2, 2, 1),
    Sketcher.Constraint("Coincident", 2, 2, 3, 1),
    Sketcher.Constraint("Coincident", 3, 2, 0, 1),
    Sketcher.Constraint("Vertical", 0),
    Sketcher.Constraint("Horizontal", 3),
    Sketcher.Constraint("Perpendicular", 1, 2),
    Sketcher.Constraint("Distance", 2, Q("5.5 in")),
    Sketcher.Constraint("Distance", 1, Q("1.875 in")),
    Sketcher.Constraint("DistanceX", -1, 1, 2, 2, 213.825198),
    Sketcher.Constraint("DistanceX", 3, 2, 3, 1, 113.776638),
    Sketcher.Constraint("DistanceY", -1, 1, 2, 2, 32.448182),
])
pad5 = doc.addObject("PartDesign::Pad", "Pad004")
body5.addObject(pad5)
pad5.Profile = sketch7
pad5.Length = Q("0.5 in")
body6 = doc.addObject("PartDesign::Body", "Body005")

# Sketch on XZ plane
sketch8 = doc.addObject("Sketcher::SketchObject", "Sketch007")
body6.addObject(sketch8)
sketch8.AttachmentSupport = (doc.getObject("XZ_Plane005"), [""])
sketch8.MapMode = "FlatFace"
sketch8.addGeometry([
    Part.LineSegment(Vector(20, 32, 0), Vector(0, 0, 0)),
    Part.LineSegment(Vector(0, 0, 0), Vector(100, -62, 0)),
    Part.LineSegment(Vector(100, -62, 0), Vector(100, 32, 0)),
    Part.LineSegment(Vector(100, 32, 0), Vector(20, 32, 0)),
], False)
sketch8.addConstraint([
    Sketcher.Constraint("Coincident", 0, 2, 1, 1),
    Sketcher.Constraint("Coincident", 1, 2, 2, 1),
    Sketcher.Constraint("Coincident", 2, 2, 3, 1),
    Sketcher.Constraint("Coincident", 3, 2, 0, 1),
    Sketcher.Constraint("Vertical", 2),
    Sketcher.Constraint("Horizontal", 3),
    Sketcher.Constraint("Coincident", 0, 2, -1, 1),
    Sketcher.Constraint("Perpendicular", 0, 1),
    Sketcher.Constraint("Distance", 0, Q("1.5 in")),
    Sketcher.Constraint("Distance", 1, Q("4.625 in")),
    Sketcher.Constraint("DistanceX", 3, 2, 3, 1, 80.080449),
])
pad6 = doc.addObject("PartDesign::Pad", "Pad005")
body6.addObject(pad6)
pad6.Profile = sketch8
pad6.Length = Q("0.5 in")
body7 = doc.addObject("PartDesign::Body", "Body006")

# Sketch on XZ plane
sketch9 = doc.addObject("Sketcher::SketchObject", "Sketch008")
body7.addObject(sketch9)
sketch9.AttachmentSupport = (doc.getObject("XZ_Plane006"), [""])
sketch9.MapMode = "FlatFace"
sketch9.addGeometry([
    Part.LineSegment(Vector(-53, -87, 0), Vector(0, 0, 0)),
    Part.LineSegment(Vector(0, 0, 0), Vector(-87, 53, 0)),
    Part.LineSegment(Vector(-87, 53, 0), Vector(-140, -33, 0)),
    Part.LineSegment(Vector(-140, -33, 0), Vector(-53, -87, 0)),
], False)
sketch9.addConstraint([
    Sketcher.Constraint("Coincident", 0, 2, 1, 1),
    Sketcher.Constraint("Coincident", 1, 2, 2, 1),
    Sketcher.Constraint("Coincident", 2, 2, 3, 1),
    Sketcher.Constraint("Coincident", 3, 2, 0, 1),
    Sketcher.Constraint("Coincident", 0, 2, -1, 1),
    Sketcher.Constraint("Perpendicular", 0, 1),
    Sketcher.Constraint("Perpendicular", 1, 2),
    Sketcher.Constraint("Perpendicular", 2, 3),
    Sketcher.Constraint("Equal", 0, 1),
    Sketcher.Constraint("Distance", 0, Q("4 in")),
    Sketcher.Constraint("DistanceY", -1, 1, 1, 2, 53.248298),
])
pad7 = doc.addObject("PartDesign::Pad", "Pad006")
body7.addObject(pad7)
pad7.Profile = sketch9
pad7.Length = Q("0.5 in")

doc.recompute()
